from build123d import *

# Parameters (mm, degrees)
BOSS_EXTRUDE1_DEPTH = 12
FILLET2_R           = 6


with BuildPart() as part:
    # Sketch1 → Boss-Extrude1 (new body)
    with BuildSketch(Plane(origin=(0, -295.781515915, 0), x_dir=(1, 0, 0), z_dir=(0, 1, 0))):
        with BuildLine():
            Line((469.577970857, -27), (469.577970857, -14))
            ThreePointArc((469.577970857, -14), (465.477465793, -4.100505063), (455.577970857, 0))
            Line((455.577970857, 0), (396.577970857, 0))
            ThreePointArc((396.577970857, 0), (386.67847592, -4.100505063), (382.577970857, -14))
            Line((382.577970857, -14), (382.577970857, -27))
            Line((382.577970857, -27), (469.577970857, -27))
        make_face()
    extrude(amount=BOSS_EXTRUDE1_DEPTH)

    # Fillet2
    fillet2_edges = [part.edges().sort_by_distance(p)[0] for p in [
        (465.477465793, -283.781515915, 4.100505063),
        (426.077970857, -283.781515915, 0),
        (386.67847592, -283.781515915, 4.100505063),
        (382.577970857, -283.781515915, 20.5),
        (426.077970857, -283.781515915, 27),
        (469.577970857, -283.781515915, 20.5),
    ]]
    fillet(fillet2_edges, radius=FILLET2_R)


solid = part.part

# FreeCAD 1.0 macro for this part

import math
import FreeCAD as App
import Part
import Sketcher
from FreeCAD import Vector
Q = App.Units.Quantity


def edges_at(feature, points):
    """Names of the edges that pass closest to the given points."""
    edges = feature.Shape.Edges
    near = lambda p: min(range(len(edges)), key=lambda i: edges[i].distToShape(Part.Vertex(*p))[0])
    return sorted({f"Edge{near(p) + 1}" for p in points})

doc = App.newDocument("Part")
body = doc.addObject("PartDesign::Body", "Body")

# Sketch on XZ plane
sketch1 = body.newObject("Sketcher::SketchObject", "Sketch")
sketch1.AttachmentSupport = (doc.getObject("XZ_Plane"), [""])
sketch1.MapMode = "FlatFace"
sketch1.AttachmentOffset = App.Placement(Vector(0, 0, 295.781516), App.Rotation())
sketch1.addGeometry([
    Part.LineSegment(Vector(470, 27, 0), Vector(470, 14, 0)),  # 0
    Part.ArcOfCircle(Part.Circle(Vector(456, 14, 0), Vector(0, 0, 1), 14), math.radians(-90), math.radians(0)),  # 1
    Part.LineSegment(Vector(456, 0, 0), Vector(397, 0, 0)),  # 2
    Part.ArcOfCircle(Part.Circle(Vector(397, 14, 0), Vector(0, 0, 1), 14), math.radians(180), math.radians(270)),  # 3
    Part.LineSegment(Vector(383, 14, 0), Vector(383, 27, 0)),  # 4
    Part.LineSegment(Vector(383, 27, 0), Vector(470, 27, 0)),  # 5
], False)
sketch1.addConstraint([
    Sketcher.Constraint("Tangent", 0, 2, 1, 2),
    Sketcher.Constraint("Tangent", 1, 1, 2, 1),
    Sketcher.Constraint("Tangent", 2, 2, 3, 2),
    Sketcher.Constraint("Tangent", 3, 1, 4, 1),
    Sketcher.Constraint("Coincident", 4, 2, 5, 1),
    Sketcher.Constraint("Coincident", 5, 2, 0, 1),
    Sketcher.Constraint("Vertical", 0),
    Sketcher.Constraint("Horizontal", 2),
    Sketcher.Constraint("Vertical", 4),
    Sketcher.Constraint("Horizontal", 5),
    Sketcher.Constraint("Equal", 1, 3),
    Sketcher.Constraint("PointOnObject", 1, 1, -1),
    Sketcher.Constraint("Radius", 1, Q("14 mm")),
    Sketcher.Constraint("DistanceX", 2, 2, 2, 1, Q("59 mm")),
    Sketcher.Constraint("DistanceY", 0, 2, 0, 1, Q("13 mm")),
    Sketcher.Constraint("DistanceX", -1, 1, 1, 3, Q("455.577971 mm")),
])
pad1 = body.newObject("PartDesign::Pad", "Pad")
pad1.Profile = sketch1
pad1.Length = 12
pad1.Reversed = True
doc.recompute()

fillet = body.newObject("PartDesign::Fillet", "Fillet")
fillet.Base = (pad1, edges_at(pad1, [
    (465.477, -283.782, 4.101),
    (426.078, -283.782, 0),
    (386.678, -283.782, 4.101),
    (382.578, -283.782, 20.5),
    (426.078, -283.782, 27),
    (469.578, -283.782, 20.5),
]))
fillet.Radius = 6

doc.recompute()
